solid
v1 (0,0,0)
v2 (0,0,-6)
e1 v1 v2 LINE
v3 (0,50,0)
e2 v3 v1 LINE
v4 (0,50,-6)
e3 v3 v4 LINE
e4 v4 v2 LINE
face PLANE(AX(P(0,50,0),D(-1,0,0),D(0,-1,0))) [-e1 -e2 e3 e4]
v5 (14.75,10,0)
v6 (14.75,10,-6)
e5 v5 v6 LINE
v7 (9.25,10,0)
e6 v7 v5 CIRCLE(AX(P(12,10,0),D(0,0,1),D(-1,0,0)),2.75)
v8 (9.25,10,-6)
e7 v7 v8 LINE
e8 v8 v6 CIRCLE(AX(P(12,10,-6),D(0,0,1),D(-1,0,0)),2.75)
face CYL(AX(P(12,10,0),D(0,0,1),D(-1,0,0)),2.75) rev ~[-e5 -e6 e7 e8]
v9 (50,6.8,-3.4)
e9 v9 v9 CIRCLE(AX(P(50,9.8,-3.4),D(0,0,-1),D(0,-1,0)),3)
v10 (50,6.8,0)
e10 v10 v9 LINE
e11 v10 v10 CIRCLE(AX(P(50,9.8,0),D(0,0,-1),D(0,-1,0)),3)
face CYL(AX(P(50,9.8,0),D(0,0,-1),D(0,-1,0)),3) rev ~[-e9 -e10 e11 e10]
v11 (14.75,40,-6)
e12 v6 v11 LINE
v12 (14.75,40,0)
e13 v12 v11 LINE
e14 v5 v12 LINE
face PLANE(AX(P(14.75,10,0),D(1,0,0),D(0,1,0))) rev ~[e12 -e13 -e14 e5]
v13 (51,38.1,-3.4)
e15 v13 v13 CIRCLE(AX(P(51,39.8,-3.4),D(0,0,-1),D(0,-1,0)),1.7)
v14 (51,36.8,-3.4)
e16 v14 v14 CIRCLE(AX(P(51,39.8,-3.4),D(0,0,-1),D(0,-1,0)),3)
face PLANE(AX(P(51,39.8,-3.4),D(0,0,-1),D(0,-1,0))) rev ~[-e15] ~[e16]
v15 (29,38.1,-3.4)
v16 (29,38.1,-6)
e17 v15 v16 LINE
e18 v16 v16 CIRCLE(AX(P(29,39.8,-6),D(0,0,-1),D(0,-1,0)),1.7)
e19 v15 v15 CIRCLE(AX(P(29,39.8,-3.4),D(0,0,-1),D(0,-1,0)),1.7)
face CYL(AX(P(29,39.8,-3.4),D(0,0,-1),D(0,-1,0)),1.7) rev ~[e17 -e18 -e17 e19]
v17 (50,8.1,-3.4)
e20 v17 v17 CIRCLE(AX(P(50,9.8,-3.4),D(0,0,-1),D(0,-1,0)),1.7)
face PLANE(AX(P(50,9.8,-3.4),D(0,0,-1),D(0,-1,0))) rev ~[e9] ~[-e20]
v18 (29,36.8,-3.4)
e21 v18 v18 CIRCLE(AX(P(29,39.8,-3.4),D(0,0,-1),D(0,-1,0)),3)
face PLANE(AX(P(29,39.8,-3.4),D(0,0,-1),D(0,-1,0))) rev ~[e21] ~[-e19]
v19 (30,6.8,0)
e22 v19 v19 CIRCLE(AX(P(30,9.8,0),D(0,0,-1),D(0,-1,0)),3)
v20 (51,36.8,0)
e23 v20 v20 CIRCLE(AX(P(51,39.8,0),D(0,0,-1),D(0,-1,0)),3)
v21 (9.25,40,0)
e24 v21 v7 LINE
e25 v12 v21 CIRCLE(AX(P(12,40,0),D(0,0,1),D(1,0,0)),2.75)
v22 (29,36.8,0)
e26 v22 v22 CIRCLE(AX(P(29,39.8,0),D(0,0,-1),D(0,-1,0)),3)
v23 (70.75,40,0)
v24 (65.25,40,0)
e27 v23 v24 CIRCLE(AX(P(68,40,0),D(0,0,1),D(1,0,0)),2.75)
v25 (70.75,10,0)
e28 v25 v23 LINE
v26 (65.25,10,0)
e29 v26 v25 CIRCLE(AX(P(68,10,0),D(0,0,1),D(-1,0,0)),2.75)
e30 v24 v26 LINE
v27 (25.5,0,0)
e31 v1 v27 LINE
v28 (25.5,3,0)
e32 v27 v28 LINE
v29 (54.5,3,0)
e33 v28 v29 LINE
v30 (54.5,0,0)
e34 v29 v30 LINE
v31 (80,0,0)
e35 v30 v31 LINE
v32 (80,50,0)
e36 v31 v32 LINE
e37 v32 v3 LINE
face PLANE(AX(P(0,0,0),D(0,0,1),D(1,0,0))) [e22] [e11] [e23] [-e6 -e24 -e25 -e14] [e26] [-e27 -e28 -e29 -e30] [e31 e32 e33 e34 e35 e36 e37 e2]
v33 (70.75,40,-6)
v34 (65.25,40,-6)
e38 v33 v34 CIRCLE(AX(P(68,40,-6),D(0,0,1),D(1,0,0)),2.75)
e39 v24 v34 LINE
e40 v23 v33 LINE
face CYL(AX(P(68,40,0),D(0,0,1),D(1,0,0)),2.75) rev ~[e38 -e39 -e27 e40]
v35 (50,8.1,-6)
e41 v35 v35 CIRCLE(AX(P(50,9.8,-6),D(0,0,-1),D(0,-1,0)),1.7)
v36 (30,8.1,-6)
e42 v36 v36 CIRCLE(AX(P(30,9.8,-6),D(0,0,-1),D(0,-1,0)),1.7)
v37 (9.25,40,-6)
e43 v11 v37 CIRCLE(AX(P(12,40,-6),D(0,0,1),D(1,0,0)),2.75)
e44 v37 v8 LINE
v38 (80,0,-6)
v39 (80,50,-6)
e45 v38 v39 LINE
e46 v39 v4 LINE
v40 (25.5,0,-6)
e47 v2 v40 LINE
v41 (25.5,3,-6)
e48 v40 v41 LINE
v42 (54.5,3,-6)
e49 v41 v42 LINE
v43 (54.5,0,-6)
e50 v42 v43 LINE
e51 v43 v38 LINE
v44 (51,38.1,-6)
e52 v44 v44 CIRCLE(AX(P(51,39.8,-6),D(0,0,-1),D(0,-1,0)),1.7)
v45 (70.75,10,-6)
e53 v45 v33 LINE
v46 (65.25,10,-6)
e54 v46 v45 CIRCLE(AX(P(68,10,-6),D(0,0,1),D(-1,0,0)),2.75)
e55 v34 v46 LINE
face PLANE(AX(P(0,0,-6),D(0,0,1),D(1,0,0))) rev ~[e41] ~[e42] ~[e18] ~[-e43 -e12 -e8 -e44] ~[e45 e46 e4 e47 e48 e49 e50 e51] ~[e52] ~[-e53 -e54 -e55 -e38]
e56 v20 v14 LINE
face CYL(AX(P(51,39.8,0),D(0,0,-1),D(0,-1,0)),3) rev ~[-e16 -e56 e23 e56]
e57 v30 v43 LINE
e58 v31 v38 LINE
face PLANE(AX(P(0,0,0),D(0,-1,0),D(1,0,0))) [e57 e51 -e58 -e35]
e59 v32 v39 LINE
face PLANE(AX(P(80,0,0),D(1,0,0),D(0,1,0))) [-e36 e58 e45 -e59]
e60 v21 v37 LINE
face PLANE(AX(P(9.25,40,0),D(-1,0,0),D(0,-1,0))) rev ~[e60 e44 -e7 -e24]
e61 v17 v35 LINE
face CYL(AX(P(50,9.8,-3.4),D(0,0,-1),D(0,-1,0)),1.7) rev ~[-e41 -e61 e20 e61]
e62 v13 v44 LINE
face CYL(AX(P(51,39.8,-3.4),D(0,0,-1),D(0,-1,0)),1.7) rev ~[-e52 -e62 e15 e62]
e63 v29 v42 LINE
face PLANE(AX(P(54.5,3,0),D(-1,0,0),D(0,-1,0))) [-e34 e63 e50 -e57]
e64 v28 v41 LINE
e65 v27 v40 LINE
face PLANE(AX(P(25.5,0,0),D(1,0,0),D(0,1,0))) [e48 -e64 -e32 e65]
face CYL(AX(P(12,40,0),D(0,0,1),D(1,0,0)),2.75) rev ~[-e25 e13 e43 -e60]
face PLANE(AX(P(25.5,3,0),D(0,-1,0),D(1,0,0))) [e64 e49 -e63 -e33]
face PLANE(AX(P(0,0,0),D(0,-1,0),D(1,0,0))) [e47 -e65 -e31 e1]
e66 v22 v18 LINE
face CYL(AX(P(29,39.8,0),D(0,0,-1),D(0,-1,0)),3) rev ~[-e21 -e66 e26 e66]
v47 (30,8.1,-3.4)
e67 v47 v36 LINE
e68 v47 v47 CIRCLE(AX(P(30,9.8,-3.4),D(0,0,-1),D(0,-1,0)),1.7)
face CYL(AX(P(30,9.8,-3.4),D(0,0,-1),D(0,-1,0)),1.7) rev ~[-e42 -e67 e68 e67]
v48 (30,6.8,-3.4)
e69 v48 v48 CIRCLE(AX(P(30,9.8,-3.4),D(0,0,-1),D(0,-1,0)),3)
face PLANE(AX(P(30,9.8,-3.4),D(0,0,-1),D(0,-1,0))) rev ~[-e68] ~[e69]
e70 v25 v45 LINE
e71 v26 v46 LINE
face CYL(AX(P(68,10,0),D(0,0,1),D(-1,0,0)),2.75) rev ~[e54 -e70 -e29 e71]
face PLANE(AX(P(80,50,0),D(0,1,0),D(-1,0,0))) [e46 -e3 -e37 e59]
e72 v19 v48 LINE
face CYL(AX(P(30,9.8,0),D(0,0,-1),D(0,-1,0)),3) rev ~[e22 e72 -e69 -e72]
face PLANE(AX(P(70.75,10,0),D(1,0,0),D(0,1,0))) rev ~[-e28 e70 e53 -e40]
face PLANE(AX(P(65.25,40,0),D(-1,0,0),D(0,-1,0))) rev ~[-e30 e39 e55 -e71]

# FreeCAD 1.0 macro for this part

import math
import FreeCAD as App
import Part
import Sketcher


def add_polygon(sketch, points):
    """Adds a closed chain of lines whose ends are joined by coincident constraints."""
    first, n = sketch.GeometryCount, len(points)
    for a, b in zip(points, points[1:] + points[:1]):
        sketch.addGeometry(Part.LineSegment(App.Vector(*a, 0), App.Vector(*b, 0)), False)
    for i in range(n):
        sketch.addConstraint(Sketcher.Constraint("Coincident", first + i, 2, first + (i + 1) % n, 1))

doc = App.newDocument("Part")
body = doc.addObject("PartDesign::Body", "Body")

sketch1 = body.newObject("Sketcher::SketchObject", "Sketch")
sketch1.AttachmentSupport = (doc.getObject("XY_Plane"), [""])
sketch1.MapMode = "FlatFace"
add_polygon(sketch1, [(0, 50), (0, 0), (80, 0), (80, 50)])
sketch1.addGeometry(Part.LineSegment(App.Vector(9.2, 10, 0), App.Vector(9.2, 40, 0)), False)
sketch1.addGeometry(Part.ArcOfCircle(Part.Circle(App.Vector(12, 40, 0), App.Vector(0, 0, 1), 2.8), math.radians(0), math.radians(180)), False)
sketch1.addGeometry(Part.LineSegment(App.Vector(14.8, 40, 0), App.Vector(14.8, 10, 0)), False)
sketch1.addGeometry(Part.ArcOfCircle(Part.Circle(App.Vector(12, 10, 0), App.Vector(0, 0, 1), 2.8), math.radians(180), math.radians(360)), False)
sketch1.addGeometry(Part.LineSegment(App.Vector(65.2, 10, 0), App.Vector(65.2, 40, 0)), False)
sketch1.addGeometry(Part.ArcOfCircle(Part.Circle(App.Vector(68, 40, 0), App.Vector(0, 0, 1), 2.8), math.radians(0), math.radians(180)), False)
sketch1.addGeometry(Part.LineSegment(App.Vector(70.8, 40, 0), App.Vector(70.8, 10, 0)), False)
sketch1.addGeometry(Part.ArcOfCircle(Part.Circle(App.Vector(68, 10, 0), App.Vector(0, 0, 1), 2.8), math.radians(180), math.radians(360)), False)
sketch1.addConstraint([
    Sketcher.Constraint("Tangent", 4, 2, 5, 2),
    Sketcher.Constraint("Tangent", 5, 1, 6, 1),
    Sketcher.Constraint("Tangent", 6, 2, 7, 2),
    Sketcher.Constraint("Tangent", 7, 1, 4, 1),
    Sketcher.Constraint("Tangent", 8, 2, 9, 2),
    Sketcher.Constraint("Tangent", 9, 1, 10, 1),
    Sketcher.Constraint("Tangent", 10, 2, 11, 2),
    Sketcher.Constraint("Tangent", 11, 1, 8, 1),
    Sketcher.Constraint("Vertical", 0),
    Sketcher.Constraint("Horizontal", 1),
    Sketcher.Constraint("Vertical", 2),
    Sketcher.Constraint("Horizontal", 3),
    Sketcher.Constraint("Vertical", 4),
    Sketcher.Constraint("Vertical", 6),
    Sketcher.Constraint("Vertical", 8),
    Sketcher.Constraint("Vertical", 10),
    Sketcher.Constraint("Coincident", 0, 2, -1, 1),
    Sketcher.Constraint("Equal", 7, 9),
    Sketcher.Constraint("Horizontal", 5, 3, 9, 3),
    Sketcher.Constraint("Horizontal", 7, 3, 11, 3),
    Sketcher.Constraint("DistanceX", 1, 1, 1, 2, 80.0),
    Sketcher.Constraint("DistanceY", 0, 2, 0, 1, 50.0),
    Sketcher.Constraint("DistanceY", 4, 1, 4, 2, 30.0),
    Sketcher.Constraint("Radius", 5, 2.75),
    Sketcher.Constraint("DistanceX", -1, 1, 5, 3, 12.0),
    Sketcher.Constraint("DistanceX", 11, 3, 1, 2, 12.0),
    Sketcher.Constraint("DistanceY", -1, 1, 5, 3, 40.0),
])
pad1 = body.newObject("PartDesign::Pad", "Pad")
pad1.Profile = sketch1
pad1.Length = 6
pad1.Reversed = True

sketch2 = body.newObject("Sketcher::SketchObject", "Sketch001")
sketch2.AttachmentSupport = (doc.getObject("XY_Plane"), [""])
sketch2.MapMode = "FlatFace"
sketch2.addGeometry([
    Part.Circle(App.Vector(30, 9.8, 0), App.Vector(0, 0, 1), 1.7),
    Part.Circle(App.Vector(29, 39.8, 0), App.Vector(0, 0, 1), 1.7),
    Part.Circle(App.Vector(51, 39.8, 0), App.Vector(0, 0, 1), 1.7),
    Part.Circle(App.Vector(50, 9.8, 0), App.Vector(0, 0, 1), 1.7),
], False)
sketch2.addConstraint([
    Sketcher.Constraint("Equal", 0, 1),
    Sketcher.Constraint("Equal", 1, 2),
    Sketcher.Constraint("Equal", 2, 3),
    Sketcher.Constraint("Horizontal", 1, 3, 2, 3),
    Sketcher.Constraint("Horizontal", 0, 3, 3, 3),
    Sketcher.Constraint("Diameter", 0, 3.4),
    Sketcher.Constraint("DistanceX", -1, 1, 0, 3, 30.0),
    Sketcher.Constraint("DistanceX", -1, 1, 1, 3, 29.0),
    Sketcher.Constraint("DistanceX", -1, 1, 2, 3, 51.0),
    Sketcher.Constraint("DistanceX", -1, 1, 3, 3, 50.0),
    Sketcher.Constraint("DistanceY", 0, 3, 1, 3, 30.0),
    Sketcher.Constraint("DistanceY", -1, 1, 0, 3, 9.8),
])
doc.recompute()
hole = body.newObject("PartDesign::Hole", "Hole")
hole.Profile = sketch2
hole.ThreadType = "None"
hole.Diameter = 3.4
hole.DepthType = "ThroughAll"
hole.HoleCutType = "Counterbore"
hole.HoleCutDiameter = 6
hole.HoleCutDepth = 3.4

sketch3 = body.newObject("Sketcher::SketchObject", "Sketch002")
sketch3.AttachmentSupport = (doc.getObject("XY_Plane"), [""])
sketch3.MapMode = "FlatFace"
add_polygon(sketch3, [(25.5, 3), (25.5, 0), (54.5, 0), (54.5, 3)])
sketch3.addConstraint([
    Sketcher.Constraint("Vertical", 0),
    Sketcher.Constraint("Horizontal", 1),
    Sketcher.Constraint("Vertical", 2),
    Sketcher.Constraint("Horizontal", 3),
    Sketcher.Constraint("PointOnObject", 0, 2, -1),
    Sketcher.Constraint("DistanceX", 1, 1, 1, 2, 29.0),
    Sketcher.Constraint("DistanceY", 0, 2, 0, 1, 3.0),
    Sketcher.Constraint("DistanceX", -1, 1, 0, 2, 25.5),
])
pocket1 = body.newObject("PartDesign::Pocket", "Pocket")
pocket1.Profile = sketch3
pocket1.Type = "ThroughAll"

doc.recompute()
